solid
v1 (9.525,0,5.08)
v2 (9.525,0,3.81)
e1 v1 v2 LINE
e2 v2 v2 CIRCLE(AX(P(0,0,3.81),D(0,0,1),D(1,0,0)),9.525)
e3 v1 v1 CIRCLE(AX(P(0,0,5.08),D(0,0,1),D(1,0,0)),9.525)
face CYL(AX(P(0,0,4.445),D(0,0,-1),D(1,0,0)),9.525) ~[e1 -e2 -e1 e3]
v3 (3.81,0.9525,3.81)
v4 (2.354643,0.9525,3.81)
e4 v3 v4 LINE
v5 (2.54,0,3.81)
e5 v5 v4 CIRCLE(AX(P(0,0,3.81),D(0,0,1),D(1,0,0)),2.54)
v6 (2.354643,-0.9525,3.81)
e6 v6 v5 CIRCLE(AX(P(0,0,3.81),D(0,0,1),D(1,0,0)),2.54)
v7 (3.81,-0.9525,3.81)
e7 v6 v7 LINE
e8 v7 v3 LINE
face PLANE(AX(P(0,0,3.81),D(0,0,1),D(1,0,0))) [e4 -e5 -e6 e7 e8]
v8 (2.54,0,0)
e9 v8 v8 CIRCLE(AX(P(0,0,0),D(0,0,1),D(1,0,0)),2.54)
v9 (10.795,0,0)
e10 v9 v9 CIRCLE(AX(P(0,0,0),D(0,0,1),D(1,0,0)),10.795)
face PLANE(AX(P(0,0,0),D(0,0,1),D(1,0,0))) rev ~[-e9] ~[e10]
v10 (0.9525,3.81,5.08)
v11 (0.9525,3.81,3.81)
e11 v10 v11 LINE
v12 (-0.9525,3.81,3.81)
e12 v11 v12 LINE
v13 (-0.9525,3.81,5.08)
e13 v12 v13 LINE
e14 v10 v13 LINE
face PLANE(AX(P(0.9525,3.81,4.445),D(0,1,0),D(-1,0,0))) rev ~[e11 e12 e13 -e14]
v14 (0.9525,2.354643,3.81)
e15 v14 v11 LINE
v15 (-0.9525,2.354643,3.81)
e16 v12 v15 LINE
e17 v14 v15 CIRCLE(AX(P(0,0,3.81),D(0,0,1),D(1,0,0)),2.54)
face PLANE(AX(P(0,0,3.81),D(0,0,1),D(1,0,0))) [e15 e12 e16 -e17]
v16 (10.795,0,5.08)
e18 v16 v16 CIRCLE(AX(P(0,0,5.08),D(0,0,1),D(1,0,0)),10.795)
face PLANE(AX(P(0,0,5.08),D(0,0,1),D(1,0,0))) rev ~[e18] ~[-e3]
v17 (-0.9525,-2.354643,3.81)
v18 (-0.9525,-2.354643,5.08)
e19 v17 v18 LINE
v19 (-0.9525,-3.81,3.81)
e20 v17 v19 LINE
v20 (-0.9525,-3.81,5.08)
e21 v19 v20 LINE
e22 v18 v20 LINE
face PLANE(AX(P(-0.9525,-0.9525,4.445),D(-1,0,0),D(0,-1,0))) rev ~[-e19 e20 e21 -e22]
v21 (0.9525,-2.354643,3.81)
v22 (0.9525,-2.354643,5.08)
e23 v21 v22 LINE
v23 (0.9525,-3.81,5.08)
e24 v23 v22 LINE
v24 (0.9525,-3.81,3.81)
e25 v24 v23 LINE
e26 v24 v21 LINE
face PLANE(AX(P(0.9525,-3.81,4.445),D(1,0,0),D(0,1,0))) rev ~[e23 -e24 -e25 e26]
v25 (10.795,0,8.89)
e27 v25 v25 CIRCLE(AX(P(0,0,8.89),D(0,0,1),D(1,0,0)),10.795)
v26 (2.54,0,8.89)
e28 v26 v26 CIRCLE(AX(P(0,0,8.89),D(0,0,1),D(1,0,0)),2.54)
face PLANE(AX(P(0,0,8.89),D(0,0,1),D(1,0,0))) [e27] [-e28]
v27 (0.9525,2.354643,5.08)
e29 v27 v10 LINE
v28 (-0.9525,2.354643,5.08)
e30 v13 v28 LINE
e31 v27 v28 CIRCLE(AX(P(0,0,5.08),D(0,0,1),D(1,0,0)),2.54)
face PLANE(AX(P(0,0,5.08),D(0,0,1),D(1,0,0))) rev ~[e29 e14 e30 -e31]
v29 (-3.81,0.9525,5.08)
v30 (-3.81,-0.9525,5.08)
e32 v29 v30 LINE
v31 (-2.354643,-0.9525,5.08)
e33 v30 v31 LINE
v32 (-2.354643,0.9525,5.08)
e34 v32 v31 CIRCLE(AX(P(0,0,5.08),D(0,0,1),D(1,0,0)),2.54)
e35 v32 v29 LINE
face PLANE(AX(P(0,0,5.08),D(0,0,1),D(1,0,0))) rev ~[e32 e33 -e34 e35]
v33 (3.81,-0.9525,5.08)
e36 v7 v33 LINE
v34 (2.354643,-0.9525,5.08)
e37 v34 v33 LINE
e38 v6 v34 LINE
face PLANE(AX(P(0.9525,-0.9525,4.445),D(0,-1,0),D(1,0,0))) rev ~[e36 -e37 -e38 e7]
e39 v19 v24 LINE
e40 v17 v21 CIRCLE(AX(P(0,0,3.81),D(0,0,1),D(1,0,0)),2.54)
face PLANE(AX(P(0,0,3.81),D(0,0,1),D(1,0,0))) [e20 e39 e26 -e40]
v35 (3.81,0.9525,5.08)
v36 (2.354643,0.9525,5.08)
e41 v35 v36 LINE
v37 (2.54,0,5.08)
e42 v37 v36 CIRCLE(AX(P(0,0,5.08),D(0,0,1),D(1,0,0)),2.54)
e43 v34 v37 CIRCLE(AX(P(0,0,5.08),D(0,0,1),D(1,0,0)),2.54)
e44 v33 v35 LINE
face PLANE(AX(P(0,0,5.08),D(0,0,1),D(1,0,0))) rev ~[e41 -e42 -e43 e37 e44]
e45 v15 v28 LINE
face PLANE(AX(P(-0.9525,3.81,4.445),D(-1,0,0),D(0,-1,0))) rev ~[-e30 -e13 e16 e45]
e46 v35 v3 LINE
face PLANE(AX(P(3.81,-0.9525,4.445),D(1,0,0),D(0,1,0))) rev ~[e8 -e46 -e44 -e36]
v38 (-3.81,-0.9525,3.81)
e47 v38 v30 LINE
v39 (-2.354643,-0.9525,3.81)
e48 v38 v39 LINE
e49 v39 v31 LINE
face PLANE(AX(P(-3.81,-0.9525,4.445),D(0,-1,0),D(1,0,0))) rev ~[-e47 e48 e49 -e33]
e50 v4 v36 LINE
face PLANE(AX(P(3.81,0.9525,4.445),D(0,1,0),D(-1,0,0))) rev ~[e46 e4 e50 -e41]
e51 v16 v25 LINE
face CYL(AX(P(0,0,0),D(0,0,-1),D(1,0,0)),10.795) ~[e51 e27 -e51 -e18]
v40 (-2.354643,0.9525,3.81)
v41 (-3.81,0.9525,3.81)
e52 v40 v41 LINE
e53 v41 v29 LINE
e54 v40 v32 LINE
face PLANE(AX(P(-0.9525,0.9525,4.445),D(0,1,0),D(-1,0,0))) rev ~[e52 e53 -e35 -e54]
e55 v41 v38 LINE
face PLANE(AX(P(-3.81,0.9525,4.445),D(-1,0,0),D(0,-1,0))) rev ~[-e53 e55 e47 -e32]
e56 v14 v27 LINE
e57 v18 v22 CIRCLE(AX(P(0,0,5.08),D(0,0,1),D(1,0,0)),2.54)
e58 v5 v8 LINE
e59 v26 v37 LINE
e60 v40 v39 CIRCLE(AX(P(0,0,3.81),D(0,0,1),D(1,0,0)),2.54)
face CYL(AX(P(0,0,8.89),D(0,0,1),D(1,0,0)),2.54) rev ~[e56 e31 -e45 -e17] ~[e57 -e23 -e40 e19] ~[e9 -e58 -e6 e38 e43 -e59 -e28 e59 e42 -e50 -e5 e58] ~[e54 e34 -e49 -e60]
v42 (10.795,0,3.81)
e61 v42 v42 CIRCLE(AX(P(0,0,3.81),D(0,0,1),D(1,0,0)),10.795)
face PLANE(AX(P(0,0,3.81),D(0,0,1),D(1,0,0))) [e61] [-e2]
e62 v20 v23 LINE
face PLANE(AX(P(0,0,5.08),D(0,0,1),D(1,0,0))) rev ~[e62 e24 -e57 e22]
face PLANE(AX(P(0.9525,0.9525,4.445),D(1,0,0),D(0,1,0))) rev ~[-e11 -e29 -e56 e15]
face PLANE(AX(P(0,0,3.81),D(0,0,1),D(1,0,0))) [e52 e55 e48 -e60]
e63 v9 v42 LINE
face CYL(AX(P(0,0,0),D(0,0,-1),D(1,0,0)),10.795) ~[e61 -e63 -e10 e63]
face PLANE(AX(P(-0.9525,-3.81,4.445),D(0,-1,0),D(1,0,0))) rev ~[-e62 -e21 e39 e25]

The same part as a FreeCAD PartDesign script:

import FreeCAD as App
import Part
import Sketcher
from FreeCAD import Vector
Q = App.Units.Quantity

doc = App.newDocument("Part")
params = doc.addObject("Spreadsheet::Sheet", "Params")
for row, (alias, value) in enumerate([
    ("sketch1_diameter", "0.85 in"),
    ("pad1_length", "0.35 in"),
    ("sketch2_diameter", "0.85 in"),
    ("sketch2_diameter2", "0.75 in"),
    ("pocket1_length", "0.05 in"),
    ("sketch3_diameter", "0.2 in"),
    ("sketch4_width", "0.075 in"),
    ("pocket3_length", "0.05 in"),
], start=1):
    params.set(f"A{row}", alias)
    params.set(f"B{row}", "=" + value)
    params.setAlias(f"B{row}", alias)

body = doc.addObject("PartDesign::Body", "Body")

# Sketch on XY plane
sketch1 = doc.addObject("Sketcher::SketchObject", "Sketch")
body.addObject(sketch1)
sketch1.AttachmentSupport = (doc.XY_Plane, [""])
sketch1.MapMode = "FlatFace"
sketch1.addGeometry(Part.Circle(Vector(0, 0, 0), Vector(0, 0, 1), 11), False)
sketch1.addConstraint([
    Sketcher.Constraint("Coincident", 0, 3, -1, 1),
    Sketcher.Constraint("Diameter", 0, Q("0.85 in")),
])
sketch1.setExpression("Constraints[1]", "Params.sketch1_diameter")
pad1 = doc.addObject("PartDesign::Pad", "Pad")
body.addObject(pad1)
pad1.Profile = sketch1
pad1.setExpression("Length", "Params.pad1_length")

# Sketch on XY plane
sketch2 = doc.addObject("Sketcher::SketchObject", "Sketch001")
body.addObject(sketch2)
sketch2.AttachmentSupport = (doc.XY_Plane, [""])
sketch2.MapMode = "FlatFace"
sketch2.AttachmentOffset = App.Placement(Vector(0, 0, 0.175 * 25.4), App.Rotation())
sketch2.addGeometry([
    Part.Circle(Vector(0, 0, 0), Vector(0, 0, 1), 11),
    Part.Circle(Vector(0, 0, 0), Vector(0, 0, 1), 10),
], False)
sketch2.addConstraint([
    Sketcher.Constraint("Coincident", 0, 3, -1, 1),
    Sketcher.Constraint("Coincident", 1, 3, -1, 1),
    Sketcher.Constraint("Diameter", 0, Q("0.85 in")),
    Sketcher.Constraint("Diameter", 1, Q("0.75 in")),
])
sketch2.setExpression("Constraints[2]", "Params.sketch2_diameter")
sketch2.setExpression("Constraints[3]", "Params.sketch2_diameter2")
pocket1 = doc.addObject("PartDesign::Pocket", "Pocket")
body.addObject(pocket1)
pocket1.Profile = sketch2
pocket1.setExpression("Length", "Params.pocket1_length")
pocket1.Midplane = True

# Sketch on XY plane
sketch3 = doc.addObject("Sketcher::SketchObject", "Sketch002")
body.addObject(sketch3)
sketch3.AttachmentSupport = (doc.XY_Plane, [""])
sketch3.MapMode = "FlatFace"
sketch3.AttachmentOffset = App.Placement(Vector(0, 0, 0.35 * 25.4), App.Rotation())
sketch3.addGeometry(Part.Circle(Vector(0, 0, 0), Vector(0, 0, 1), 2.5), False)
sketch3.addConstraint([
    Sketcher.Constraint("Coincident", 0, 3, -1, 1),
    Sketcher.Constraint("Diameter", 0, Q("0.2 in")),
])
sketch3.setExpression("Constraints[1]", "Params.sketch3_diameter")
pocket2 = doc.addObject("PartDesign::Pocket", "Pocket001")
body.addObject(pocket2)
pocket2.Profile = sketch3
pocket2.Type = "ThroughAll"

# Sketch on XY plane
sketch4 = doc.addObject("Sketcher::SketchObject", "Sketch003")
body.addObject(sketch4)
sketch4.AttachmentSupport = (doc.XY_Plane, [""])
sketch4.MapMode = "FlatFace"
sketch4.AttachmentOffset = App.Placement(Vector(0, 0, 0.175 * 25.4), App.Rotation())
sketch4.addGeometry([
    Part.LineSegment(Vector(1, 3.8, 0), Vector(-1, 3.8, 0)),  # 0
    Part.LineSegment(Vector(-1, 3.8, 0), Vector(-1, 1, 0)),  # 1
    Part.LineSegment(Vector(-1, 1, 0), Vector(-3.8, 1, 0)),  # 2
    Part.LineSegment(Vector(-3.8, 1, 0), Vector(-3.8, -1, 0)),  # 3
    Part.LineSegment(Vector(-3.8, -1, 0), Vector(-1, -1, 0)),  # 4
    Part.LineSegment(Vector(-1, -1, 0), Vector(-1, -3.8, 0)),  # 5
    Part.LineSegment(Vector(-1, -3.8, 0), Vector(1, -3.8, 0)),  # 6
    Part.LineSegment(Vector(1, -3.8, 0), Vector(1, -1, 0)),  # 7
    Part.LineSegment(Vector(1, -1, 0), Vector(3.8, -1, 0)),  # 8
    Part.LineSegment(Vector(3.8, -1, 0), Vector(3.8, 1, 0)),  # 9
    Part.LineSegment(Vector(3.8, 1, 0), Vector(1, 1, 0)),  # 10
    Part.LineSegment(Vector(1, 1, 0), Vector(1, 3.8, 0)),  # 11
], False)
sketch4.addConstraint([
    Sketcher.Constraint("Coincident", 0, 2, 1, 1),
    Sketcher.Constraint("Coincident", 1, 2, 2, 1),
    Sketcher.Constraint("Coincident", 2, 2, 3, 1),
    Sketcher.Constraint("Coincident", 3, 2, 4, 1),
    Sketcher.Constraint("Coincident", 4, 2, 5, 1),
    Sketcher.Constraint("Coincident", 5, 2, 6, 1),
    Sketcher.Constraint("Coincident", 6, 2, 7, 1),
    Sketcher.Constraint("Coincident", 7, 2, 8, 1),
    Sketcher.Constraint("Coincident", 8, 2, 9, 1),
    Sketcher.Constraint("Coincident", 9, 2, 10, 1),
    Sketcher.Constraint("Coincident", 10, 2, 11, 1),
    Sketcher.Constraint("Coincident", 11, 2, 0, 1),
    Sketcher.Constraint("Horizontal", 0),
    Sketcher.Constraint("Vertical", 1),
    Sketcher.Constraint("Horizontal", 2),
    Sketcher.Constraint("Vertical", 3),
    Sketcher.Constraint("Horizontal", 4),
    Sketcher.Constraint("Vertical", 5),
    Sketcher.Constraint("Horizontal", 6),
    Sketcher.Constraint("Vertical", 7),
    Sketcher.Constraint("Horizontal", 8),
    Sketcher.Constraint("Vertical", 9),
    Sketcher.Constraint("Horizontal", 10),
    Sketcher.Constraint("Vertical", 11),
    Sketcher.Constraint("Symmetric", 0, 2, 6, 2, -1, 1),
    Sketcher.Constraint("Symmetric", 2, 2, 8, 2, -1, 1),
    Sketcher.Constraint("Symmetric", 4, 2, 10, 2, -1, 1),
    Sketcher.Constraint("Symmetric", 4, 2, 7, 2, -2),
    Sketcher.Constraint("Equal", 10, 1),
    Sketcher.Constraint("Equal", 6, 3),
    Sketcher.Constraint("DistanceY", 5, 2, 0, 2, Q("0.3 in")),
    Sketcher.Constraint("DistanceX", 0, 2, 0, 1, Q("0.075 in")),
])
sketch4.setExpression("Constraints[31]", "Params.sketch4_width")
pocket3 = doc.addObject("PartDesign::Pocket", "Pocket002")
body.addObject(pocket3)
pocket3.Profile = sketch4
pocket3.setExpression("Length", "Params.pocket3_length")
pocket3.Midplane = True

doc.recompute()
